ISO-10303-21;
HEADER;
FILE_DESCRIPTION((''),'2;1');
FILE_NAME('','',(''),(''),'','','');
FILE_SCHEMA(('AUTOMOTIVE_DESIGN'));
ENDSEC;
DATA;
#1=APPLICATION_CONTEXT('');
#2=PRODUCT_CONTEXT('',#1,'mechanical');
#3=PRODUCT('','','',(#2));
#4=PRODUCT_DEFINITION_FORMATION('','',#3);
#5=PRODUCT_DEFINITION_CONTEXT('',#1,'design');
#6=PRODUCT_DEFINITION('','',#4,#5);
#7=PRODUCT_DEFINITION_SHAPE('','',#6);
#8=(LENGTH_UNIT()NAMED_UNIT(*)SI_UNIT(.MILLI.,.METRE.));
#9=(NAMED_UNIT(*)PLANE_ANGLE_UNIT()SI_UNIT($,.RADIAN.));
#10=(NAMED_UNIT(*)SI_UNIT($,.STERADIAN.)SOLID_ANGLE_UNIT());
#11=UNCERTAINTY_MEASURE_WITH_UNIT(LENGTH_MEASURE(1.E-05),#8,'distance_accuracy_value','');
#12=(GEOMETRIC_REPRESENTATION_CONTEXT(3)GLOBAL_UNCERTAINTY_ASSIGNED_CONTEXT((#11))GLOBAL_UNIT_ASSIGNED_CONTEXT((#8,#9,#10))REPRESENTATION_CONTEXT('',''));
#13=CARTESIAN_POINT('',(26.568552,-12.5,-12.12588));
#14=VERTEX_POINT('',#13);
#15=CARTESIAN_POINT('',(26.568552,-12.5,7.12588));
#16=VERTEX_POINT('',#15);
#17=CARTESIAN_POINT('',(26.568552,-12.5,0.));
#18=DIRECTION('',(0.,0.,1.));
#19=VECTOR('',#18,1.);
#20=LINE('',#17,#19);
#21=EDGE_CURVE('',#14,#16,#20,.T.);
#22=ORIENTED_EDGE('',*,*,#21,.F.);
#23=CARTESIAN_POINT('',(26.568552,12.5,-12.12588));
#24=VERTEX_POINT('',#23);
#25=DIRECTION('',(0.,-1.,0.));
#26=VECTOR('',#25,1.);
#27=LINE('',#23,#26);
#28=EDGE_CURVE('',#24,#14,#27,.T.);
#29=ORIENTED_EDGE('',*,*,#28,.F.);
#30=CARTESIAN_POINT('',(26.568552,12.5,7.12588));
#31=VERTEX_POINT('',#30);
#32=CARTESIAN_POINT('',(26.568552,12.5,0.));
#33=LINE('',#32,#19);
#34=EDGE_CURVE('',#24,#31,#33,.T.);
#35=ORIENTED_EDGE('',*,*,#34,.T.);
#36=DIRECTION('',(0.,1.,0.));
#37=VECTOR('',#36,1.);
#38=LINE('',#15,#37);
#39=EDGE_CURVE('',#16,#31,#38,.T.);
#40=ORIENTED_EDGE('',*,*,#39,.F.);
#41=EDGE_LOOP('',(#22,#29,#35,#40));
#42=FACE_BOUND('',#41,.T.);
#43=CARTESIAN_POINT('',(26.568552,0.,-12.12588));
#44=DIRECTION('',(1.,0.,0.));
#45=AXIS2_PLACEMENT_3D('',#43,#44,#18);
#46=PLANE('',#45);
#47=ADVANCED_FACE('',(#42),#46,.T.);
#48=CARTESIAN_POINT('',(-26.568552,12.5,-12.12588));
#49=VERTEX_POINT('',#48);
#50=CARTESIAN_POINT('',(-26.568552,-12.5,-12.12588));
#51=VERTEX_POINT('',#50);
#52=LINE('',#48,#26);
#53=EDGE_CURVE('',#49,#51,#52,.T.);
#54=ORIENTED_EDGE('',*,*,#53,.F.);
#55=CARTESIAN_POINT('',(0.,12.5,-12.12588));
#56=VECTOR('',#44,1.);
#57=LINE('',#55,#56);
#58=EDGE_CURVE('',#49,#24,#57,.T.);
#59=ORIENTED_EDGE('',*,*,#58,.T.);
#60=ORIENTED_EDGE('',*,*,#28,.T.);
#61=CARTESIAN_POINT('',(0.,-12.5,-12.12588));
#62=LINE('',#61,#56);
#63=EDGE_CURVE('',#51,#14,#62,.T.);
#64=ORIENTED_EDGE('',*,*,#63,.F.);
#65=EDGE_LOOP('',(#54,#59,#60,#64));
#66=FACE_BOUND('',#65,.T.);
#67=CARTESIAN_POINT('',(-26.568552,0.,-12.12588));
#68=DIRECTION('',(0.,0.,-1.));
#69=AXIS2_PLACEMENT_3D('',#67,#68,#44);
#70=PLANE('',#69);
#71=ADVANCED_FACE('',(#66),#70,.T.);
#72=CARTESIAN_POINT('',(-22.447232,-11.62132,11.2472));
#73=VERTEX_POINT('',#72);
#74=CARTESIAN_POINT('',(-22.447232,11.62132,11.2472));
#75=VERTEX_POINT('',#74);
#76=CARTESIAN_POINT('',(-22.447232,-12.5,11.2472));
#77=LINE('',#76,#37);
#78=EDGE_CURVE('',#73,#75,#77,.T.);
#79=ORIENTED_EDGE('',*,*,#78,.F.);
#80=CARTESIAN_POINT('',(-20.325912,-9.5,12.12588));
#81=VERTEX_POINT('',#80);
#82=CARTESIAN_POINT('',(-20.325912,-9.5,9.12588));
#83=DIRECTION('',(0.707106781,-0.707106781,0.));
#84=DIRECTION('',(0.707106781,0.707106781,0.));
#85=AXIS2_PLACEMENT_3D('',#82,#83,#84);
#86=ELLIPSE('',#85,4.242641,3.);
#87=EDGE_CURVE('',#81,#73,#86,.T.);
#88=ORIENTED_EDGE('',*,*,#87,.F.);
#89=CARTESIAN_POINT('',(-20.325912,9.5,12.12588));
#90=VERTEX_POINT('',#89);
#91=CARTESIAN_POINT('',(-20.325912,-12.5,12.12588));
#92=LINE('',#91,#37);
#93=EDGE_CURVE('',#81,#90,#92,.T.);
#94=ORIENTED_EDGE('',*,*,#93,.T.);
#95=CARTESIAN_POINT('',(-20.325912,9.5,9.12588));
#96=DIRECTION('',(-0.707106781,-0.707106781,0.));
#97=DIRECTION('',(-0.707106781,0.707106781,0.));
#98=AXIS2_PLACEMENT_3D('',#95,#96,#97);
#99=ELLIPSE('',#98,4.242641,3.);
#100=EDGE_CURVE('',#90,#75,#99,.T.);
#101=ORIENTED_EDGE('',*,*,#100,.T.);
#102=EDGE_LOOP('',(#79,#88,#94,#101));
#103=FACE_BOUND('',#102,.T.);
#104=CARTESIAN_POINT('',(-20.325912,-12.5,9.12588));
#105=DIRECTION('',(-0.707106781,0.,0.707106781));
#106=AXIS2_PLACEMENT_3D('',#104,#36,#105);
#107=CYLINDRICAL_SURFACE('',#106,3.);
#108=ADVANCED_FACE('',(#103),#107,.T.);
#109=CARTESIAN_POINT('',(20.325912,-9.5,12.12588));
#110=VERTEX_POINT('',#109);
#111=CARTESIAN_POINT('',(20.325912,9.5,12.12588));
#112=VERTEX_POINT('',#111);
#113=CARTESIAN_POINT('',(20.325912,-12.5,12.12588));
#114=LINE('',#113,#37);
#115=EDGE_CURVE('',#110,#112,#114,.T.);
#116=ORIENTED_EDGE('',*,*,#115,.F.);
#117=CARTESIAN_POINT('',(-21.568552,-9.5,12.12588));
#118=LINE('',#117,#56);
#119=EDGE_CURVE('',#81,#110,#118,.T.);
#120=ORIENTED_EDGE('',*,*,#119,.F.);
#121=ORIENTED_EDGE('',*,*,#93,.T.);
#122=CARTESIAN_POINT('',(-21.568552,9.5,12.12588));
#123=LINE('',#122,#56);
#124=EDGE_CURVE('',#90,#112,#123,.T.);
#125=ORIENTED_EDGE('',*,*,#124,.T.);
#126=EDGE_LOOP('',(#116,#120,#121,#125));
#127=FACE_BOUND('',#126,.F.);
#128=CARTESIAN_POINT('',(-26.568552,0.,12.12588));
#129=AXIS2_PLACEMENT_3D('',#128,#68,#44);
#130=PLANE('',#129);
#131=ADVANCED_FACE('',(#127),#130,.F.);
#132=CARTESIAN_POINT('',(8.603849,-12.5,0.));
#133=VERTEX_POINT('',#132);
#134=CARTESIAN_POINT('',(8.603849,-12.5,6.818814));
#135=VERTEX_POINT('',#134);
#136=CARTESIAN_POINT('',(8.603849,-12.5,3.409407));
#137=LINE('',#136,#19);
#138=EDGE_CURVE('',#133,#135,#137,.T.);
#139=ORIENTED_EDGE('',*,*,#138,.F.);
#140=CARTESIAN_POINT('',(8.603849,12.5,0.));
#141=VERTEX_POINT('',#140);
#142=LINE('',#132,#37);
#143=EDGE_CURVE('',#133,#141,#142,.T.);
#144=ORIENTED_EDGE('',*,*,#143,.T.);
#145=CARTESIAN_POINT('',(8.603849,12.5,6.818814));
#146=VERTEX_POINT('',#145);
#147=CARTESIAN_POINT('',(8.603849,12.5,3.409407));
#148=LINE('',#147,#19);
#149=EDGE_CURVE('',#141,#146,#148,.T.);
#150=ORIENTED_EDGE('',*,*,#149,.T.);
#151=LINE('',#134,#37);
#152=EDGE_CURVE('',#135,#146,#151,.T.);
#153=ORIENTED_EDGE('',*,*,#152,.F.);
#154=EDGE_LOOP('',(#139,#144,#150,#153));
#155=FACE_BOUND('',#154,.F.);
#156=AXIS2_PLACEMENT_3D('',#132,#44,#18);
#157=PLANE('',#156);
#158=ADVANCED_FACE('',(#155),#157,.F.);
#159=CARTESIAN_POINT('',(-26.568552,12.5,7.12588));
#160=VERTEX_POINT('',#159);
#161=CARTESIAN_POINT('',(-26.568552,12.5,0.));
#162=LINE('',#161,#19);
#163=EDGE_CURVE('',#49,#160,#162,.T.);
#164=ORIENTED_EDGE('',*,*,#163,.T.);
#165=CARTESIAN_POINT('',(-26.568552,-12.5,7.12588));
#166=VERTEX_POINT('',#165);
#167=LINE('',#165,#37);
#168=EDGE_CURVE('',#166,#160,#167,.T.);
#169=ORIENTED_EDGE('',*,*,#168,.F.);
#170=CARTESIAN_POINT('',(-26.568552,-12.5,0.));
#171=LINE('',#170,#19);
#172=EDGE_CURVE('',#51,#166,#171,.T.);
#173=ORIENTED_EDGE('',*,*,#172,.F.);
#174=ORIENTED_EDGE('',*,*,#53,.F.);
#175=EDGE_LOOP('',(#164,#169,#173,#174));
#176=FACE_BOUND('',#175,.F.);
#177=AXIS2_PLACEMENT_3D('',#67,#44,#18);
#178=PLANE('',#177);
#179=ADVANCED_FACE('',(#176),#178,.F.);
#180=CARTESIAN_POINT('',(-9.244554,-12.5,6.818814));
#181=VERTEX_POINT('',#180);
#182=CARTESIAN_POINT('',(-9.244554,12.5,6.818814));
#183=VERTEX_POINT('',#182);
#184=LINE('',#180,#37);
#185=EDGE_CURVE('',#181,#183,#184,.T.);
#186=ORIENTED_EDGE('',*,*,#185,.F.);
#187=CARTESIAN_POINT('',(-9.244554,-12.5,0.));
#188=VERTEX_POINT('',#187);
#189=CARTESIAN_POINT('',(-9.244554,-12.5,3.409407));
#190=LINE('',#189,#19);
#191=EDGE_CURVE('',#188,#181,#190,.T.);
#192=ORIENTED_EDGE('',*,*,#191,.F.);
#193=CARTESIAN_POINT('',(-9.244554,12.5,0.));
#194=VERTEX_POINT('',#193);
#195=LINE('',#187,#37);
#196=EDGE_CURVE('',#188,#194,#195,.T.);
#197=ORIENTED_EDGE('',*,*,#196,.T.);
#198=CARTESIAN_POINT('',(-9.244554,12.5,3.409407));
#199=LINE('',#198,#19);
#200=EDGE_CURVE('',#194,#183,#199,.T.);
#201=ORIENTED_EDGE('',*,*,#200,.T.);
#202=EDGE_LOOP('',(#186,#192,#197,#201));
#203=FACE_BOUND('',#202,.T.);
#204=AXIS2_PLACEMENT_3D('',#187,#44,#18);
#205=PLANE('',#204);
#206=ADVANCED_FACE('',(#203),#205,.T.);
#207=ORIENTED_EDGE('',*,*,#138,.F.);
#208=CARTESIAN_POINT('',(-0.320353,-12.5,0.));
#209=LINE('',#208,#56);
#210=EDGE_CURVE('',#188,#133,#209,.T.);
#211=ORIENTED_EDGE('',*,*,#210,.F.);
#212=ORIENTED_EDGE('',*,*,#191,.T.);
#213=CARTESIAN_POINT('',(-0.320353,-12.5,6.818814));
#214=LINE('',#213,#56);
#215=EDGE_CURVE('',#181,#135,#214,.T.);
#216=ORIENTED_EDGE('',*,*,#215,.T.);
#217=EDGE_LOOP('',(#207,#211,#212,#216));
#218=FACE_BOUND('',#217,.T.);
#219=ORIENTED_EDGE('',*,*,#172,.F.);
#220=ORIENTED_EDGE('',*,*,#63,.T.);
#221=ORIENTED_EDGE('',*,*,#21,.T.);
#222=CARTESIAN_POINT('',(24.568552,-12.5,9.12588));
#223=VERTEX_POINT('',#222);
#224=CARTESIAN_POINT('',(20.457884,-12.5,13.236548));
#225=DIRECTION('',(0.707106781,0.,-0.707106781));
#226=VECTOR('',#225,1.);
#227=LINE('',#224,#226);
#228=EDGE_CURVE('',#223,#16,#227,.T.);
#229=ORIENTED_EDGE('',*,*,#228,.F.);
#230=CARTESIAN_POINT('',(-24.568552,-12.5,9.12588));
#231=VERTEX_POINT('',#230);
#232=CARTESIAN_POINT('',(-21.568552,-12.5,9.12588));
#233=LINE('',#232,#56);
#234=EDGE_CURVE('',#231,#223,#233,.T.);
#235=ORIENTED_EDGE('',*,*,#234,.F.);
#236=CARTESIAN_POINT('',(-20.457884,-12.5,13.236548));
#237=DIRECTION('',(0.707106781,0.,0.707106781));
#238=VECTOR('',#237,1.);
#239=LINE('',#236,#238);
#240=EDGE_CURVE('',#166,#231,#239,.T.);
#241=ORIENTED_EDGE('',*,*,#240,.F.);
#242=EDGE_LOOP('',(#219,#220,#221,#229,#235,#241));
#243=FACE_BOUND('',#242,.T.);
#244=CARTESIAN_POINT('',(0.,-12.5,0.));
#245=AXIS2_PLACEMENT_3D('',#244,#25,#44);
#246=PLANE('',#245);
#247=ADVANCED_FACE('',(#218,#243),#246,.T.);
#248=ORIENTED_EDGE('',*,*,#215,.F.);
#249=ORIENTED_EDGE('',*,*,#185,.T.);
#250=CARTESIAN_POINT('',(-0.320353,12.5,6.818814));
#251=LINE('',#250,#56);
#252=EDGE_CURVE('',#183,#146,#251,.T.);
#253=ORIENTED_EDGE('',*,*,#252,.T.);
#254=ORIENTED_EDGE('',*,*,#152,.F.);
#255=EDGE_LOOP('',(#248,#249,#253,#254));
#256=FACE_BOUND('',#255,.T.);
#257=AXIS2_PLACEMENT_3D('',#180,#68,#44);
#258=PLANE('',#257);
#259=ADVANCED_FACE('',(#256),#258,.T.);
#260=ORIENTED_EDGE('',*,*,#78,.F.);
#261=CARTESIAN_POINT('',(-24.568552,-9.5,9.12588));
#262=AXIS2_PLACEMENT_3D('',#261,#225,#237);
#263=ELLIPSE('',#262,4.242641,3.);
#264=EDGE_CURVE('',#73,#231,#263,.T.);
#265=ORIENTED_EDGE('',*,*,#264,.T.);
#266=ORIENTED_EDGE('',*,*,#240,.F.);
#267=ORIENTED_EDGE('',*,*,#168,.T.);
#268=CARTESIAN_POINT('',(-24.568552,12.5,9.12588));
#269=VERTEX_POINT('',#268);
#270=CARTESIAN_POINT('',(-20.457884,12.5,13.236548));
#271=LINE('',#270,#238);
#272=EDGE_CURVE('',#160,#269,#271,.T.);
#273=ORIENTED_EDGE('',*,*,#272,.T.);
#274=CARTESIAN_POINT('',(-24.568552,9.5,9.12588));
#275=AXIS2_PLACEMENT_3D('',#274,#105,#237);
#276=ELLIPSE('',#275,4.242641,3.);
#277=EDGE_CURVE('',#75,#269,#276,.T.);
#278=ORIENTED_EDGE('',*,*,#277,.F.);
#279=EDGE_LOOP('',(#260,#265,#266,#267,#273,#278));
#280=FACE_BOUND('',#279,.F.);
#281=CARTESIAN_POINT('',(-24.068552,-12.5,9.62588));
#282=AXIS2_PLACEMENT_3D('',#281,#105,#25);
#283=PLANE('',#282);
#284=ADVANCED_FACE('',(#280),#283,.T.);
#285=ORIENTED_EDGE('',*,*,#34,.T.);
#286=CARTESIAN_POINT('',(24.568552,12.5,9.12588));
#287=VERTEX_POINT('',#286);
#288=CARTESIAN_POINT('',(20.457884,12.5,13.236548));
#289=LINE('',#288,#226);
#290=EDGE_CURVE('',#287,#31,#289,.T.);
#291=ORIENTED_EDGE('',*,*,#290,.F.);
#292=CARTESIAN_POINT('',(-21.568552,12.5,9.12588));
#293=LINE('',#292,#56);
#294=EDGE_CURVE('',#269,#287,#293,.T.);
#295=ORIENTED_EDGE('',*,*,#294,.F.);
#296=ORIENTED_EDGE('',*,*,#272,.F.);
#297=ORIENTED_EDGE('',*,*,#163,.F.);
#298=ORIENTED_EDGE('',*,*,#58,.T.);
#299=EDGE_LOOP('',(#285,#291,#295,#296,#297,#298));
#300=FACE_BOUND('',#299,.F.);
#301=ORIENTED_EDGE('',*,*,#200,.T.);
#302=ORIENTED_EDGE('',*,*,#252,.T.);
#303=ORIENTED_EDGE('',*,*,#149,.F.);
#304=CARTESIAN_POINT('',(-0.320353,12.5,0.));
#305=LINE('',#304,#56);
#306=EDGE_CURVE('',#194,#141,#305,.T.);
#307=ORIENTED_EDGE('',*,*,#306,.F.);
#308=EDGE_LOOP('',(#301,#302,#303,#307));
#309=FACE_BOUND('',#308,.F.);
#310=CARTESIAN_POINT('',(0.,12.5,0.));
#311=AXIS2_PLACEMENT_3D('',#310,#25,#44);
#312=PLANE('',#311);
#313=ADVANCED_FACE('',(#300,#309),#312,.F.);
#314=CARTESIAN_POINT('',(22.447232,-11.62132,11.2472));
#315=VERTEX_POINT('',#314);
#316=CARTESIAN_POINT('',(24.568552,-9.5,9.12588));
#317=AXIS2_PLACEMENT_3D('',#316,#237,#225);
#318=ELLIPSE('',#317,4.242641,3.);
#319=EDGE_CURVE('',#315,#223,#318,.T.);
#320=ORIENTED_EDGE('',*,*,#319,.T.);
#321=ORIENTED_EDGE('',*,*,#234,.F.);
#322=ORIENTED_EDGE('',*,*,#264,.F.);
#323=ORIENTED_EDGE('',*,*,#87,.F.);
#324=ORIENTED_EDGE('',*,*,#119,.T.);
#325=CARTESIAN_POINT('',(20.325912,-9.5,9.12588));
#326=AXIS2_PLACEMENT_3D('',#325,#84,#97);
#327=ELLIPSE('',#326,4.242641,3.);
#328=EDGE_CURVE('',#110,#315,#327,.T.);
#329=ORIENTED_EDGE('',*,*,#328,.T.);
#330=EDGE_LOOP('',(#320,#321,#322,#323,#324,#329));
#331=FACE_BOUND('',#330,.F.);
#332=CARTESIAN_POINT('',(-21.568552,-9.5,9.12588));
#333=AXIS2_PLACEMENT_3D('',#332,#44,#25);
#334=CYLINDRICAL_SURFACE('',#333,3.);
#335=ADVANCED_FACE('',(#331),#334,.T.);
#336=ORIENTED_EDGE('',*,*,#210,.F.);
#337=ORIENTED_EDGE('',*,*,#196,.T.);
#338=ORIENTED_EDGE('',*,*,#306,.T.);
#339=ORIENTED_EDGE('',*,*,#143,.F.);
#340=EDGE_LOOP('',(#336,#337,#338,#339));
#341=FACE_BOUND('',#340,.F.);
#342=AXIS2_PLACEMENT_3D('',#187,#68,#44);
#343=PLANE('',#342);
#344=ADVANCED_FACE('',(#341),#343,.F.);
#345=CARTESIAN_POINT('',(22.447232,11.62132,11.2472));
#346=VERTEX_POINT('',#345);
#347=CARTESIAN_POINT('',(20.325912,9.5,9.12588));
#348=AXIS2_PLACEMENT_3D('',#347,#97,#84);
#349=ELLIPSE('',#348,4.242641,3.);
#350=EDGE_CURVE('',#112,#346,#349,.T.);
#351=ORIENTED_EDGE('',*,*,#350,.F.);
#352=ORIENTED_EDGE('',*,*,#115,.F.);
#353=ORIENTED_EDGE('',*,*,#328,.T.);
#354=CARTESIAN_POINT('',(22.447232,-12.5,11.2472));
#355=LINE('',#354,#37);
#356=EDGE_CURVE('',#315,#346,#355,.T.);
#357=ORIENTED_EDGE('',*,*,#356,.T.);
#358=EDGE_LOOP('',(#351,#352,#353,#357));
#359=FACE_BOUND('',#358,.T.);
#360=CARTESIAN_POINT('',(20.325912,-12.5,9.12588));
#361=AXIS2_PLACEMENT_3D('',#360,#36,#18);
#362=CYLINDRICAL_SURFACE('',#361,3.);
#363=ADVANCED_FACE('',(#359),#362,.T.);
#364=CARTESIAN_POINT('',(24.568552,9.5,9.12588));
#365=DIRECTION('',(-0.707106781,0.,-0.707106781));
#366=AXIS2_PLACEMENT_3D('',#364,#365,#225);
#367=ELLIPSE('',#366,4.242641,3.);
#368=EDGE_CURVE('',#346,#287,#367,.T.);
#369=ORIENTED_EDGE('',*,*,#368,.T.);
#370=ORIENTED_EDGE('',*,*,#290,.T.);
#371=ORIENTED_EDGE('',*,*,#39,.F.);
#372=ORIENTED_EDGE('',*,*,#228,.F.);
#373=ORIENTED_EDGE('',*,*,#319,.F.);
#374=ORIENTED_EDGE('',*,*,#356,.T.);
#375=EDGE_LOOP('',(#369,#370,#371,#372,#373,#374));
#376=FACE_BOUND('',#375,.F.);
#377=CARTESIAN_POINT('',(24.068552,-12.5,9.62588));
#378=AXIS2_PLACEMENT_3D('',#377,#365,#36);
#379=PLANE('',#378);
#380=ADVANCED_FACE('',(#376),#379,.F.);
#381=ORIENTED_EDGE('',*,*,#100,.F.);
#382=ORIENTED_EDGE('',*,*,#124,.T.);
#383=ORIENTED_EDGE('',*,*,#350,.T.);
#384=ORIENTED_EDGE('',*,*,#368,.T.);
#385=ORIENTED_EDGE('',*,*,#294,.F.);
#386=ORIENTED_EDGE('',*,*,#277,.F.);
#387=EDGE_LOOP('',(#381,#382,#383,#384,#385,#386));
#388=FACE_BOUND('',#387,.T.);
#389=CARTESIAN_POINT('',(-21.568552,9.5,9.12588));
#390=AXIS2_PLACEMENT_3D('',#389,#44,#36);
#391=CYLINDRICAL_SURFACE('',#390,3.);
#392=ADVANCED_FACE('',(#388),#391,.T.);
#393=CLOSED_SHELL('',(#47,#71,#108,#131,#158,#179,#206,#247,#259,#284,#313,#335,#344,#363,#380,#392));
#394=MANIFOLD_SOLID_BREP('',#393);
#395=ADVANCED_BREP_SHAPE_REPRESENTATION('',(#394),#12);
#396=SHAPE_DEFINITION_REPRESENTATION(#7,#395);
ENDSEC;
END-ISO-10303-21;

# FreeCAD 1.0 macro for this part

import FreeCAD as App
import Part
import Sketcher

V = App.Vector
Q = App.Units.Quantity


def edges_at(feature, points):
    """Names of the edges that pass closest to the given points."""
    edges = feature.Shape.Edges
    near = lambda p: min(range(len(edges)), key=lambda i: edges[i].distToShape(Part.Vertex(*p))[0])
    return sorted({f"Edge{near(p) + 1}" for p in points})


def add_polygon(sketch, points):
    """Adds a closed chain of lines whose ends are joined by coincident constraints."""
    first, n = sketch.GeometryCount, len(points)
    for a, b in zip(points, points[1:] + points[:1]):
        sketch.addGeometry(Part.LineSegment(App.Vector(*a, 0), App.Vector(*b, 0)), False)
    for i in range(n):
        sketch.addConstraint(Sketcher.Constraint("Coincident", first + i, 2, first + (i + 1) % n, 1))

doc = App.newDocument("Part")
params = doc.addObject("Spreadsheet::Sheet", "Params")
for row, (alias, value) in enumerate([
    ("pad1_length", "25 mm"),
    ("pocket1_length", "25 mm"),
    ("chamfer_size", "5 mm"),
    ("fillet_radius", "3 mm"),
], start=1):
    params.set(f"A{row}", alias)
    params.set(f"B{row}", "=" + value)
    params.setAlias(f"B{row}", alias)

body = doc.addObject("PartDesign::Body", "Body")

# Sketch on XZ plane
sketch1 = body.newObject("Sketcher::SketchObject", "Sketch")
sketch1.AttachmentSupport = (doc.getObject("XZ_Plane"), [""])
sketch1.MapMode = "FlatFace"
add_polygon(sketch1, [(-26.568552, 12.12588), (-26.568552, -12.12588), (26.568552, -12.12588), (26.568552, 12.12588)])  # lines 0-3
sketch1.addConstraint([
    Sketcher.Constraint("Vertical", 0),
    Sketcher.Constraint("Horizontal", 1),
    Sketcher.Constraint("Vertical", 2),
    Sketcher.Constraint("Horizontal", 3),
    Sketcher.Constraint("Symmetric", 0, 2, 2, 2, -1, 1),
    Sketcher.Constraint("DistanceY", 0, 2, 0, 1, Q("24.251759 mm")),
    Sketcher.Constraint("DistanceX", 1, 1, 1, 2, Q("53.137105 mm")),
])
pad1 = body.newObject("PartDesign::Pad", "Pad")
pad1.Profile = sketch1
pad1.setExpression("Length", "Params.pad1_length")
pad1.Midplane = True

# Sketch on XZ plane
sketch2 = body.newObject("Sketcher::SketchObject", "Sketch001")
sketch2.AttachmentSupport = (doc.getObject("XZ_Plane"), [""])
sketch2.MapMode = "FlatFace"
sketch2.AttachmentOffset = App.Placement(V(0, 0, 12.5), App.Rotation())
add_polygon(sketch2, [(-9.244554, 6.818814), (-9.244554, 0), (8.603849, 0), (8.603849, 6.818814)])  # lines 0-3
sketch2.addConstraint([
    Sketcher.Constraint("Vertical", 0),
    Sketcher.Constraint("Horizontal", 1),
    Sketcher.Constraint("Vertical", 2),
    Sketcher.Constraint("Horizontal", 3),
    Sketcher.Constraint("PointOnObject", 0, 2, -1),
    Sketcher.Constraint("DistanceX", 1, 1, 1, 2, Q("17.848402 mm")),
    Sketcher.Constraint("DistanceY", 0, 2, 0, 1, Q("6.818814 mm")),
    Sketcher.Constraint("DistanceX", -1, 1, 1, 2, Q("8.603849 mm")),
])
pocket1 = body.newObject("PartDesign::Pocket", "Pocket")
pocket1.Profile = sketch2
pocket1.setExpression("Length", "Params.pocket1_length")
doc.recompute()

chamfer = body.newObject("PartDesign::Chamfer", "Chamfer")
chamfer.Base = (pocket1, edges_at(pocket1, [(-26.569, 0, 12.126), (26.569, 0, 12.126)]))
chamfer.setExpression("Size", "Params.chamfer_size")
doc.recompute()

fillet = body.newObject("PartDesign::Fillet", "Fillet")
fillet.Base = (chamfer, edges_at(chamfer, [
    (0, -12.5, 12.126),
    (0, 12.5, 12.126),
    (-21.569, 0, 12.126),
    (21.569, 0, 12.126),
]))
fillet.setExpression("Radius", "Params.fillet_radius")

doc.recompute()
